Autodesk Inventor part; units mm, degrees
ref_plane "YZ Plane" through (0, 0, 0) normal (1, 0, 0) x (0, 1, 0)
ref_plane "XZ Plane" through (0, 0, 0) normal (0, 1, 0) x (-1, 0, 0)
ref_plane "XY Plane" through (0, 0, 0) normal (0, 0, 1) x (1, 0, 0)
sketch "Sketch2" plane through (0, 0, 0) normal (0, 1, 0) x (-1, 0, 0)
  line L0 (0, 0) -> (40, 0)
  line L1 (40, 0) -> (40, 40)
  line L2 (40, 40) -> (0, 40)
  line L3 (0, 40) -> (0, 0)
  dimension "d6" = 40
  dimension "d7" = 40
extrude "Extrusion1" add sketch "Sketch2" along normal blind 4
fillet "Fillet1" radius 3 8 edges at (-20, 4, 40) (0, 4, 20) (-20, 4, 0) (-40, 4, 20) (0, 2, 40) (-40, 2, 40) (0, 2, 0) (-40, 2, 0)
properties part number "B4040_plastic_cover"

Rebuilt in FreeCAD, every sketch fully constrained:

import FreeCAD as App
import Part
import Sketcher
Q = App.Units.Quantity


def edges_at(feature, points):
    """Names of the edges that pass closest to the given points."""
    edges = feature.Shape.Edges
    near = lambda p: min(range(len(edges)), key=lambda i: edges[i].distToShape(Part.Vertex(*p))[0])
    return sorted({f"Edge{near(p) + 1}" for p in points})


def add_polygon(sketch, points):
    """Adds a closed chain of lines whose ends are joined by coincident constraints."""
    first, n = sketch.GeometryCount, len(points)
    for a, b in zip(points, points[1:] + points[:1]):
        sketch.addGeometry(Part.LineSegment(App.Vector(*a, 0), App.Vector(*b, 0)), False)
    for i in range(n):
        sketch.addConstraint(Sketcher.Constraint("Coincident", first + i, 2, first + (i + 1) % n, 1))

doc = App.newDocument("Part")
body = doc.addObject("PartDesign::Body", "Body")

sketch1 = body.newObject("Sketcher::SketchObject", "Sketch")
sketch1.AttachmentSupport = (doc.getObject("XZ_Plane"), [""])
sketch1.MapMode = "FlatFace"
add_polygon(sketch1, [(0, 40), (0, 0), (-40, 0), (-40, 40)])
sketch1.addConstraint([
    Sketcher.Constraint("Vertical", 0),
    Sketcher.Constraint("Horizontal", 1),
    Sketcher.Constraint("Vertical", 2),
    Sketcher.Constraint("Horizontal", 3),
    Sketcher.Constraint("Coincident", 0, 2, -1, 1),
    Sketcher.Constraint("Equal", 3, 0),
    Sketcher.Constraint("DistanceX", 1, 2, 1, 1, Q("40 mm")),
])
pad1 = body.newObject("PartDesign::Pad", "Pad")
pad1.Profile = sketch1
pad1.Length = 4
pad1.Reversed = True
doc.recompute()

fillet = body.newObject("PartDesign::Fillet", "Fillet")
fillet.Base = (pad1, edges_at(pad1, [
    (-20, 4, 40),
    (0, 4, 20),
    (-20, 4, 0),
    (-40, 4, 20),
    (0, 2, 40),
    (-40, 2, 40),
    (0, 2, 0),
    (-40, 2, 0),
]))
fillet.Radius = 3

doc.recompute()
